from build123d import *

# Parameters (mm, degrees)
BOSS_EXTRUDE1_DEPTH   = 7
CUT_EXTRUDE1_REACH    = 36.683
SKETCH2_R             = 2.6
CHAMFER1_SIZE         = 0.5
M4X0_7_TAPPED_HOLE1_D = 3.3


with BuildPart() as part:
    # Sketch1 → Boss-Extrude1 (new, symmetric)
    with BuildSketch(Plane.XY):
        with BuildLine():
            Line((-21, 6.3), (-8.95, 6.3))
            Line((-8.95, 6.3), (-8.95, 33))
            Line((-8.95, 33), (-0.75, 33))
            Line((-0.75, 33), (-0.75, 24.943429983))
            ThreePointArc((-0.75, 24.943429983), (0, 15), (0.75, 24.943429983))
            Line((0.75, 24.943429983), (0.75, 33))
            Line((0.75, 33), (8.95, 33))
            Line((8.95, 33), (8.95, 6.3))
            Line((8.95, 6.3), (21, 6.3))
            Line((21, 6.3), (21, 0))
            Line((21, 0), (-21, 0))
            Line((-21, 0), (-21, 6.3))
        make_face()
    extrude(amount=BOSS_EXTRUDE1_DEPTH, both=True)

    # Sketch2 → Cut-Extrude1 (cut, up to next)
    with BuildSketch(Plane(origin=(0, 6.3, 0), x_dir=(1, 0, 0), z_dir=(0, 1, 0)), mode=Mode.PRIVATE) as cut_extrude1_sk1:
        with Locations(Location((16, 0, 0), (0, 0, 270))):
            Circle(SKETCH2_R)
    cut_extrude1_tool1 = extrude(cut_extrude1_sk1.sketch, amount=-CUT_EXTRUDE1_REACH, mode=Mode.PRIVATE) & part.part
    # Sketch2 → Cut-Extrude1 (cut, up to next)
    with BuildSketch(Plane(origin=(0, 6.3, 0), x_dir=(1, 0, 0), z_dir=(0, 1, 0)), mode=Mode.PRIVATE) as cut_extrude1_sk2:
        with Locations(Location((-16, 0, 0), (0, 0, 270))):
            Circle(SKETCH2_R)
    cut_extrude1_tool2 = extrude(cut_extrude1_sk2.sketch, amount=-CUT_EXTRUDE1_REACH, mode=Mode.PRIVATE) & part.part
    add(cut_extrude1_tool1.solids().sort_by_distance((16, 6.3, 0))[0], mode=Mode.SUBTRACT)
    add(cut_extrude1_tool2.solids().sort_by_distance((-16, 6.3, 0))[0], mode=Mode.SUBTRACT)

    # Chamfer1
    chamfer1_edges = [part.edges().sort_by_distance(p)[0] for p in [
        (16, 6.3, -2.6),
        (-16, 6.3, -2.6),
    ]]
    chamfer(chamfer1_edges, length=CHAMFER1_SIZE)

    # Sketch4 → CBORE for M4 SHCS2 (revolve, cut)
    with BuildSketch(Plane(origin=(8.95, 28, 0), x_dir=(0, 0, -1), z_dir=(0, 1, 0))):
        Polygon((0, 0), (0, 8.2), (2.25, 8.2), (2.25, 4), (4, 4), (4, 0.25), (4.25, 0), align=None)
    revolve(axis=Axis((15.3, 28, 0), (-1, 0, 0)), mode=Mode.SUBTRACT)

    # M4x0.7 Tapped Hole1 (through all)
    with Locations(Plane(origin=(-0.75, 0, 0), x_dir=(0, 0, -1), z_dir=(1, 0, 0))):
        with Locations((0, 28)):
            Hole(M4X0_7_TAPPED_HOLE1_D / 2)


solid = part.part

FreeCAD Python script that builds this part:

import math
import FreeCAD as App
import Part
import Sketcher
Q = App.Units.Quantity


def edges_at(feature, points):
    """Names of the edges that pass closest to the given points."""
    edges = feature.Shape.Edges
    near = lambda p: min(range(len(edges)), key=lambda i: edges[i].distToShape(Part.Vertex(*p))[0])
    return sorted({f"Edge{near(p) + 1}" for p in points})


def add_polygon(sketch, points):
    """Adds a closed chain of lines whose ends are joined by coincident constraints."""
    first, n = sketch.GeometryCount, len(points)
    for a, b in zip(points, points[1:] + points[:1]):
        sketch.addGeometry(Part.LineSegment(App.Vector(*a, 0), App.Vector(*b, 0)), False)
    for i in range(n):
        sketch.addConstraint(Sketcher.Constraint("Coincident", first + i, 2, first + (i + 1) % n, 1))

doc = App.newDocument("Part")
body = doc.addObject("PartDesign::Body", "Body")

sketch1 = body.newObject("Sketcher::SketchObject", "Sketch")
sketch1.AttachmentSupport = (doc.getObject("XY_Plane"), [""])
sketch1.MapMode = "FlatFace"
sketch1.addGeometry([
    Part.LineSegment(App.Vector(-8.9, 6.3, 0), App.Vector(-21, 6.3, 0)),
    Part.LineSegment(App.Vector(-21, 6.3, 0), App.Vector(-21, 0, 0)),
    Part.LineSegment(App.Vector(-21, 0, 0), App.Vector(21, 0, 0)),
    Part.LineSegment(App.Vector(21, 0, 0), App.Vector(21, 6.3, 0)),
    Part.LineSegment(App.Vector(21, 6.3, 0), App.Vector(8.9, 6.3, 0)),
    Part.LineSegment(App.Vector(8.9, 6.3, 0), App.Vector(8.9, 33, 0)),
    Part.LineSegment(App.Vector(8.9, 33, 0), App.Vector(0.8, 33, 0)),
    Part.LineSegment(App.Vector(0.8, 33, 0), App.Vector(0.8, 24.9, 0)),
    Part.ArcOfCircle(Part.Circle(App.Vector(0, 20, 0), App.Vector(0, 0, 1), 5), math.radians(99), math.radians(441)),
    Part.LineSegment(App.Vector(-0.8, 24.9, 0), App.Vector(-0.8, 33, 0)),
    Part.LineSegment(App.Vector(-0.8, 33, 0), App.Vector(-8.9, 33, 0)),
    Part.LineSegment(App.Vector(-8.9, 33, 0), App.Vector(-8.9, 6.3, 0)),
], False)
sketch1.addConstraint([
    Sketcher.Constraint("Coincident", 0, 2, 1, 1),
    Sketcher.Constraint("Coincident", 1, 2, 2, 1),
    Sketcher.Constraint("Coincident", 2, 2, 3, 1),
    Sketcher.Constraint("Coincident", 3, 2, 4, 1),
    Sketcher.Constraint("Coincident", 4, 2, 5, 1),
    Sketcher.Constraint("Coincident", 5, 2, 6, 1),
    Sketcher.Constraint("Coincident", 6, 2, 7, 1),
    Sketcher.Constraint("Coincident", 7, 2, 8, 2),
    Sketcher.Constraint("Coincident", 8, 1, 9, 1),
    Sketcher.Constraint("Coincident", 9, 2, 10, 1),
    Sketcher.Constraint("Coincident", 10, 2, 11, 1),
    Sketcher.Constraint("Coincident", 11, 2, 0, 1),
    Sketcher.Constraint("Horizontal", 0),
    Sketcher.Constraint("Vertical", 1),
    Sketcher.Constraint("Horizontal", 2),
    Sketcher.Constraint("Vertical", 3),
    Sketcher.Constraint("Horizontal", 4),
    Sketcher.Constraint("Vertical", 5),
    Sketcher.Constraint("Horizontal", 6),
    Sketcher.Constraint("Vertical", 7),
    Sketcher.Constraint("Vertical", 9),
    Sketcher.Constraint("Horizontal", 10),
    Sketcher.Constraint("Vertical", 11),
    Sketcher.Constraint("Symmetric", 1, 2, 2, 2, -1, 1),
    Sketcher.Constraint("Symmetric", 7, 2, 8, 1, -2),
    Sketcher.Constraint("Symmetric", 5, 2, 10, 2, -2),
    Sketcher.Constraint("Horizontal", 0, 2, 3, 2),
    Sketcher.Constraint("Radius", 8, 5.0),
    Sketcher.Constraint("DistanceX", 2, 1, 2, 2, 42.0),
    Sketcher.Constraint("DistanceX", 6, 2, 6, 1, 8.2),
    Sketcher.Constraint("DistanceY", 1, 2, 1, 1, 6.3),
    Sketcher.Constraint("DistanceY", 5, 1, 5, 2, 26.7),
    Sketcher.Constraint("DistanceY", -1, 1, 8, 3, 20.0),
    Sketcher.Constraint("DistanceX", 0, 2, 0, 1, 12.05),
])
pad1 = body.newObject("PartDesign::Pad", "Pad")
pad1.Profile = sketch1
pad1.Length = 14
pad1.Midplane = True

sketch2 = body.newObject("Sketcher::SketchObject", "Sketch001")
sketch2.AttachmentSupport = (doc.getObject("XZ_Plane"), [""])
sketch2.MapMode = "FlatFace"
sketch2.AttachmentOffset = App.Placement(App.Vector(0, 0, -6.3), App.Rotation())
sketch2.addGeometry(Part.Circle(App.Vector(16, 0, 0), App.Vector(0, 0, 1), 2.6), False)
sketch2.addConstraint([
    Sketcher.Constraint("PointOnObject", 0, 3, -1),
    Sketcher.Constraint("Diameter", 0, 5.2),
    Sketcher.Constraint("DistanceX", -1, 1, 0, 3, 16.0),
])
pocket1 = body.newObject("PartDesign::Pocket", "Pocket")
pocket1.Profile = sketch2
pocket1.Type = "UpToFirst"
pocket1.Reversed = True

sketch3 = body.newObject("Sketcher::SketchObject", "Sketch002")
sketch3.AttachmentSupport = (doc.getObject("XZ_Plane"), [""])
sketch3.MapMode = "FlatFace"
sketch3.AttachmentOffset = App.Placement(App.Vector(0, 0, -6.3), App.Rotation())
sketch3.addGeometry(Part.Circle(App.Vector(-16, 0, 0), App.Vector(0, 0, 1), 2.6), False)
sketch3.addConstraint([
    Sketcher.Constraint("PointOnObject", 0, 3, -1),
    Sketcher.Constraint("Diameter", 0, 5.2),
    Sketcher.Constraint("DistanceX", 0, 3, -1, 1, 16.0),
])
pocket2 = body.newObject("PartDesign::Pocket", "Pocket001")
pocket2.Profile = sketch3
pocket2.Type = "UpToFirst"
pocket2.Reversed = True
doc.recompute()

chamfer = body.newObject("PartDesign::Chamfer", "Chamfer")
chamfer.Base = (pocket2, edges_at(pocket2, [(16, 6.3, -2.6), (-16, 6.3, -2.6)]))
chamfer.Size = 0.5

sketch4 = body.newObject("Sketcher::SketchObject", "Sketch003")
sketch4.AttachmentSupport = (doc.getObject("XZ_Plane"), [""])
sketch4.MapMode = "FlatFace"
sketch4.AttachmentOffset = App.Placement(App.Vector(0, 0, -28), App.Rotation())
add_polygon(sketch4, [(0.75, 0), (8.95, 0), (8.95, -4.25), (8.7, -4), (4.95, -4), (4.95, -2.25), (0.75, -2.25)])
sketch4.addConstraint([
    Sketcher.Constraint("Horizontal", 0),
    Sketcher.Constraint("Vertical", 1),
    Sketcher.Constraint("Horizontal", 3),
    Sketcher.Constraint("Vertical", 4),
    Sketcher.Constraint("Horizontal", 5),
    Sketcher.Constraint("Vertical", 6),
    Sketcher.Constraint("PointOnObject", 0, 2, -1),
    Sketcher.Constraint("Angle", 2, Q("135 deg")),
    Sketcher.Constraint("DistanceX", 0, 1, 0, 2, 8.2),
    Sketcher.Constraint("DistanceX", 5, 2, 5, 1, 4.2),
    Sketcher.Constraint("DistanceY", 2, 2, -1, 1, 4.0),
    Sketcher.Constraint("DistanceY", 1, 2, 4, 2, 2.0),
    Sketcher.Constraint("DistanceX", 3, 2, 3, 1, 3.75),
    Sketcher.Constraint("DistanceX", -1, 1, 2, 2, 8.7),
])
groove = body.newObject("PartDesign::Groove", "Groove")
groove.Profile = sketch4
groove.ReferenceAxis = (sketch4, ["H_Axis"])
groove.Angle = 360

sketch5 = body.newObject("Sketcher::SketchObject", "Sketch004")
sketch5.AttachmentSupport = (doc.getObject("YZ_Plane"), [""])
sketch5.MapMode = "FlatFace"
sketch5.AttachmentOffset = App.Placement(App.Vector(0, 0, -0.75), App.Rotation())
sketch5.addGeometry(Part.Circle(App.Vector(28, 0, 0), App.Vector(0, 0, 1), 1.6), False)
sketch5.addConstraint([
    Sketcher.Constraint("PointOnObject", 0, 3, -1),
    Sketcher.Constraint("Diameter", 0, 3.3),
    Sketcher.Constraint("DistanceX", -1, 1, 0, 3, 28.0),
])
doc.recompute()
hole = body.newObject("PartDesign::Hole", "Hole")
hole.Profile = sketch5
hole.ThreadType = "None"
hole.Diameter = 3.3
hole.DepthType = "ThroughAll"

doc.recompute()
